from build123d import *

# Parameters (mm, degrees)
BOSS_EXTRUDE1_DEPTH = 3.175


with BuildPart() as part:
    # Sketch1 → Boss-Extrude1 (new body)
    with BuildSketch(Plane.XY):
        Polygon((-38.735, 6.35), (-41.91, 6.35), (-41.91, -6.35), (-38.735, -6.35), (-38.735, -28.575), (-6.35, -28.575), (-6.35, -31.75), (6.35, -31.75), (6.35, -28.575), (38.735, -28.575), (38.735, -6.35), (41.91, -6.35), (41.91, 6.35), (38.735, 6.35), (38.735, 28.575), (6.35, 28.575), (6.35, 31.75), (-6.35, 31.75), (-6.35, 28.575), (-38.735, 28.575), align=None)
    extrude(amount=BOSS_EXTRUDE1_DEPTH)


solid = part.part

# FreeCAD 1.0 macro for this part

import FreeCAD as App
import Part
import Sketcher
from FreeCAD import Vector
Q = App.Units.Quantity

doc = App.newDocument("Part")
body = doc.addObject("PartDesign::Body", "Body")

sketch1 = body.newObject("Sketcher::SketchObject", "Sketch")
sketch1.AttachmentSupport = (doc.getObject("XY_Plane"), [""])
sketch1.MapMode = "FlatFace"
sketch1.addGeometry([
    Part.LineSegment(Vector(-38.7, 6.3, 0), Vector(-41.9, 6.3, 0)),
    Part.LineSegment(Vector(-41.9, 6.3, 0), Vector(-41.9, -6.3, 0)),
    Part.LineSegment(Vector(-41.9, -6.3, 0), Vector(-38.7, -6.3, 0)),
    Part.LineSegment(Vector(-38.7, -6.3, 0), Vector(-38.7, -28.6, 0)),
    Part.LineSegment(Vector(-38.7, -28.6, 0), Vector(-6.3, -28.6, 0)),
    Part.LineSegment(Vector(-6.3, -28.6, 0), Vector(-6.3, -31.8, 0)),
    Part.LineSegment(Vector(-6.3, -31.8, 0), Vector(6.3, -31.8, 0)),
    Part.LineSegment(Vector(6.3, -31.8, 0), Vector(6.3, -28.6, 0)),
    Part.LineSegment(Vector(6.3, -28.6, 0), Vector(38.7, -28.6, 0)),
    Part.LineSegment(Vector(38.7, -28.6, 0), Vector(38.7, -6.3, 0)),
    Part.LineSegment(Vector(38.7, -6.3, 0), Vector(41.9, -6.3, 0)),
    Part.LineSegment(Vector(41.9, -6.3, 0), Vector(41.9, 6.3, 0)),
    Part.LineSegment(Vector(41.9, 6.3, 0), Vector(38.7, 6.3, 0)),
    Part.LineSegment(Vector(38.7, 6.3, 0), Vector(38.7, 28.6, 0)),
    Part.LineSegment(Vector(38.7, 28.6, 0), Vector(6.3, 28.6, 0)),
    Part.LineSegment(Vector(6.3, 28.6, 0), Vector(6.3, 31.8, 0)),
    Part.LineSegment(Vector(6.3, 31.8, 0), Vector(-6.3, 31.8, 0)),
    Part.LineSegment(Vector(-6.3, 31.8, 0), Vector(-6.3, 28.6, 0)),
    Part.LineSegment(Vector(-6.3, 28.6, 0), Vector(-38.7, 28.6, 0)),
    Part.LineSegment(Vector(-38.7, 28.6, 0), Vector(-38.7, 6.3, 0)),
], False)
sketch1.addConstraint([
    Sketcher.Constraint("Coincident", 0, 2, 1, 1),
    Sketcher.Constraint("Coincident", 1, 2, 2, 1),
    Sketcher.Constraint("Coincident", 2, 2, 3, 1),
    Sketcher.Constraint("Coincident", 3, 2, 4, 1),
    Sketcher.Constraint("Coincident", 4, 2, 5, 1),
    Sketcher.Constraint("Coincident", 5, 2, 6, 1),
    Sketcher.Constraint("Coincident", 6, 2, 7, 1),
    Sketcher.Constraint("Coincident", 7, 2, 8, 1),
    Sketcher.Constraint("Coincident", 8, 2, 9, 1),
    Sketcher.Constraint("Coincident", 9, 2, 10, 1),
    Sketcher.Constraint("Coincident", 10, 2, 11, 1),
    Sketcher.Constraint("Coincident", 11, 2, 12, 1),
    Sketcher.Constraint("Coincident", 12, 2, 13, 1),
    Sketcher.Constraint("Coincident", 13, 2, 14, 1),
    Sketcher.Constraint("Coincident", 14, 2, 15, 1),
    Sketcher.Constraint("Coincident", 15, 2, 16, 1),
    Sketcher.Constraint("Coincident", 16, 2, 17, 1),
    Sketcher.Constraint("Coincident", 17, 2, 18, 1),
    Sketcher.Constraint("Coincident", 18, 2, 19, 1),
    Sketcher.Constraint("Coincident", 19, 2, 0, 1),
    Sketcher.Constraint("Horizontal", 0),
    Sketcher.Constraint("Vertical", 1),
    Sketcher.Constraint("Horizontal", 2),
    Sketcher.Constraint("Vertical", 3),
    Sketcher.Constraint("Horizontal", 4),
    Sketcher.Constraint("Vertical", 5),
    Sketcher.Constraint("Horizontal", 6),
    Sketcher.Constraint("Vertical", 7),
    Sketcher.Constraint("Horizontal", 8),
    Sketcher.Constraint("Vertical", 9),
    Sketcher.Constraint("Horizontal", 10),
    Sketcher.Constraint("Vertical", 11),
    Sketcher.Constraint("Horizontal", 12),
    Sketcher.Constraint("Vertical", 13),
    Sketcher.Constraint("Horizontal", 14),
    Sketcher.Constraint("Vertical", 15),
    Sketcher.Constraint("Horizontal", 16),
    Sketcher.Constraint("Vertical", 17),
    Sketcher.Constraint("Horizontal", 18),
    Sketcher.Constraint("Vertical", 19),
    Sketcher.Constraint("Symmetric", 0, 2, 10, 2, -1, 1),
    Sketcher.Constraint("Symmetric", 2, 2, 12, 2, -1, 1),
    Sketcher.Constraint("Symmetric", 4, 2, 14, 2, -1, 1),
    Sketcher.Constraint("Symmetric", 6, 2, 16, 2, -1, 1),
    Sketcher.Constraint("Symmetric", 8, 2, 18, 2, -1, 1),
    Sketcher.Constraint("Symmetric", 4, 2, 7, 2, -2),
    Sketcher.Constraint("Symmetric", 2, 2, 9, 2, -2),
    Sketcher.Constraint("Equal", 16, 1),
    Sketcher.Constraint("Equal", 12, 5),
    Sketcher.Constraint("DistanceX", 6, 1, 6, 2, Q("0.5 in")),
    Sketcher.Constraint("DistanceY", 5, 2, 2, 2, Q("1 in")),
    Sketcher.Constraint("DistanceX", 1, 2, 4, 2, Q("1.4 in")),
    Sketcher.Constraint("DistanceX", 0, 2, 0, 1, Q("0.125 in")),
])
pad1 = body.newObject("PartDesign::Pad", "Pad")
pad1.Profile = sketch1
pad1.Length = Q("0.125 in")

doc.recompute()
